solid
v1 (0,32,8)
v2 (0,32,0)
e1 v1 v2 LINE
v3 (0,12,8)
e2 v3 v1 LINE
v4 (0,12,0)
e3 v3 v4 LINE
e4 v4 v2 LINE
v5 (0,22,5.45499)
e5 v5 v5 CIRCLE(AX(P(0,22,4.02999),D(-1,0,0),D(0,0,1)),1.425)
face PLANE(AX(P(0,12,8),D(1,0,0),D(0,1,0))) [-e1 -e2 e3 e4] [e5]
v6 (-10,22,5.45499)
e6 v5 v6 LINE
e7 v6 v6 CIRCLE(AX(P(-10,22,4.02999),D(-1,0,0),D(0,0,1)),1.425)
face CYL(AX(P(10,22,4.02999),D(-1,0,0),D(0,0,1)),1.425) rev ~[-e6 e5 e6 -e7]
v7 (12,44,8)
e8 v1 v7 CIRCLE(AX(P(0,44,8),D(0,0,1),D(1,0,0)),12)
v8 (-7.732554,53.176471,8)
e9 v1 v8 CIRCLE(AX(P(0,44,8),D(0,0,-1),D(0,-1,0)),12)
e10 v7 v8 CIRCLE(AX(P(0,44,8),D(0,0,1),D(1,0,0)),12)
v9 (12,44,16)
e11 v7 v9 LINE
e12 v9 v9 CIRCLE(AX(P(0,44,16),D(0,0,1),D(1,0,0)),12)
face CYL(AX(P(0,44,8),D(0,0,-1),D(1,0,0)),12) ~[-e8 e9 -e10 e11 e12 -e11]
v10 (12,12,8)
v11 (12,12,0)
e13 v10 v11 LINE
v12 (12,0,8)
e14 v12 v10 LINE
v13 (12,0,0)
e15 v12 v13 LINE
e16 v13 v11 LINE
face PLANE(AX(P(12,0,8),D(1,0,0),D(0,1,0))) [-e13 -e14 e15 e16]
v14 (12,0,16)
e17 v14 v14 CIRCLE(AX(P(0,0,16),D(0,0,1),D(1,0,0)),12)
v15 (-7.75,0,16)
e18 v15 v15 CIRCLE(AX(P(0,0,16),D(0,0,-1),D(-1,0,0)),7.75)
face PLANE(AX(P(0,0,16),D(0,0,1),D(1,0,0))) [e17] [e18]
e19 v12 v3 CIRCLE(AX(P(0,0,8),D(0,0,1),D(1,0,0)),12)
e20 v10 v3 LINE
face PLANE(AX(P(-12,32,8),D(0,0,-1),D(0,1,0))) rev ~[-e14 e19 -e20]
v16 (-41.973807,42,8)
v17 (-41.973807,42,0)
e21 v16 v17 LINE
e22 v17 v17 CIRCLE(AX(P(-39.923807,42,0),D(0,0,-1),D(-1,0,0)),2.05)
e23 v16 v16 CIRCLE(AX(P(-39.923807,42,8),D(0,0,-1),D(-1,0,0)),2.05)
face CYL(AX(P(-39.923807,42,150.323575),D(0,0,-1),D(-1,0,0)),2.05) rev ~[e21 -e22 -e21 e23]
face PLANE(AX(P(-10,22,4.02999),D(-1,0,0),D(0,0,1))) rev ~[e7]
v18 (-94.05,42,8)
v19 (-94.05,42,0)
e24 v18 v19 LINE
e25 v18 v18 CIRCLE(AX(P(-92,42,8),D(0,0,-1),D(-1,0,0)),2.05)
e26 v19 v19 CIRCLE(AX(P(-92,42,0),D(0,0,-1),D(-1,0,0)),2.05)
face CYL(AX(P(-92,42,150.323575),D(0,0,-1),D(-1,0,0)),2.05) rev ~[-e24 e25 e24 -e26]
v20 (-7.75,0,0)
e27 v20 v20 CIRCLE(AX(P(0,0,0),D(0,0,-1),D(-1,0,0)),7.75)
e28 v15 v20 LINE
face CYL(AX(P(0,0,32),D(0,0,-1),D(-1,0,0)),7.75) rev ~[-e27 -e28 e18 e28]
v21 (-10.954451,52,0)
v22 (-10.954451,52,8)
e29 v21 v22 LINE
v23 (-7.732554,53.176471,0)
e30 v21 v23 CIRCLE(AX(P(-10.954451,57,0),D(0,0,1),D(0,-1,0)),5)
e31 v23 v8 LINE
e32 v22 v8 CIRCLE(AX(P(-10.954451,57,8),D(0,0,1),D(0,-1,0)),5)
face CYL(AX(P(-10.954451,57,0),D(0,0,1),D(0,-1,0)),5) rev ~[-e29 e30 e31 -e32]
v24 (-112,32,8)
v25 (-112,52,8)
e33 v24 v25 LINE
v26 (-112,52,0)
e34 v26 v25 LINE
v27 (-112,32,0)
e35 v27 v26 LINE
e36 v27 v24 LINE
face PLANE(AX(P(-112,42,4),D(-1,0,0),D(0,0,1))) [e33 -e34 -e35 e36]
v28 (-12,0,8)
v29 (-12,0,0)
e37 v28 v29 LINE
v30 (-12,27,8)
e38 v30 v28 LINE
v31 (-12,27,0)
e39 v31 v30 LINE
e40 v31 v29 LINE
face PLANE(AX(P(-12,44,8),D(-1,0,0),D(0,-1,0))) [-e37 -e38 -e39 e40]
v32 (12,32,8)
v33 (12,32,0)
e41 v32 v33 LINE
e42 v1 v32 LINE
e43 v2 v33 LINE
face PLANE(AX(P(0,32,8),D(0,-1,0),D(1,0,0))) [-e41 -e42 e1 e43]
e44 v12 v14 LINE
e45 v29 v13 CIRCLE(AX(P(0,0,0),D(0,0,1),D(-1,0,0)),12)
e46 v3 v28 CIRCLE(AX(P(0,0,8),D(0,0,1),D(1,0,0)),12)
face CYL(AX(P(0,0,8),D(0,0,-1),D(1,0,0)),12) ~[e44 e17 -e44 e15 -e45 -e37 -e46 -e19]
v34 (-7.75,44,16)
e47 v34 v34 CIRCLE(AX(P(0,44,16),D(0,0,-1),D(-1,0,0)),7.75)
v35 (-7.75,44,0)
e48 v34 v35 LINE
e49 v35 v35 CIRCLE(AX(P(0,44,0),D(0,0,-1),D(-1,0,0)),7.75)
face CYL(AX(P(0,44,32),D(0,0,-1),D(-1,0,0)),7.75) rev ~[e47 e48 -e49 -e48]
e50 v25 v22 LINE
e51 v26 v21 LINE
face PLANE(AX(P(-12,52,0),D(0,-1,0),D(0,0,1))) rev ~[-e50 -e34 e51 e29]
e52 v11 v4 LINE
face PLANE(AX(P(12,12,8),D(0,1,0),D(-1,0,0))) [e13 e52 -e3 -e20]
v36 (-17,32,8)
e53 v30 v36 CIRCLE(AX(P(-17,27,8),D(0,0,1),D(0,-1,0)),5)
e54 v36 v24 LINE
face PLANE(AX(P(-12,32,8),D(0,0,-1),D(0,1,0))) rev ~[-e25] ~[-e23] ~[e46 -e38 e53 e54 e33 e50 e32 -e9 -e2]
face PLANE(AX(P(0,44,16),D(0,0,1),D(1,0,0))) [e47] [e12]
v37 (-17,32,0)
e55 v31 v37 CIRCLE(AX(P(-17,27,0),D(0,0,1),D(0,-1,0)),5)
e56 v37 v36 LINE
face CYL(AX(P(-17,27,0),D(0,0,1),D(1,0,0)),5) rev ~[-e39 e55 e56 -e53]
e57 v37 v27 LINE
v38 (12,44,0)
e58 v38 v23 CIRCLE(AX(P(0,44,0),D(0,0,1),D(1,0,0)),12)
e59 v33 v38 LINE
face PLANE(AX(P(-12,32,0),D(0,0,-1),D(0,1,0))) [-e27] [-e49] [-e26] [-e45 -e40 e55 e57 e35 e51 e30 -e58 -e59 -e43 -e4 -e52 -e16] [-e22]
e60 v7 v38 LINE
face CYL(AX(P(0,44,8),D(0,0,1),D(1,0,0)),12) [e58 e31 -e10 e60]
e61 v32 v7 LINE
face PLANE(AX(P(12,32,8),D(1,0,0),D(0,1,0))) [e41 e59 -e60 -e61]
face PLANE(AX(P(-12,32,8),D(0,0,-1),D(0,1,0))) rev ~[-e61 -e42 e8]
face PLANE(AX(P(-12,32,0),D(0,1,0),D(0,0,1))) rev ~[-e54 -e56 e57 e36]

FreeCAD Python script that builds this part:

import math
import FreeCAD as App
import Part
import Sketcher
Q = App.Units.Quantity


def edges_at(feature, points):
    """Names of the edges that pass closest to the given points."""
    edges = feature.Shape.Edges
    near = lambda p: min(range(len(edges)), key=lambda i: edges[i].distToShape(Part.Vertex(*p))[0])
    return sorted({f"Edge{near(p) + 1}" for p in points})

doc = App.newDocument("Part")
params = doc.addObject("Spreadsheet::Sheet", "Params")
for row, (alias, value) in enumerate([
    ("sketch1_radius", "12 mm"),
    ("sketch1_height", "44 mm"),
    ("pad1_length", "8 mm"),
    ("sketch2_width", "20 mm"),
    ("sketch2_height", "8 mm"),
    ("pad2_length", "100 mm"),
    ("pad2_length2", "5 mm"),
    ("sketch3_diameter", "24 mm"),
    ("pad3_length", "8 mm"),
    ("sketch4_diameter", "24 mm"),
    ("pad4_length", "8 mm"),
    ("sketch5_diameter", "4.1 mm"),
    ("hole_diameter", "4.1 mm"),
    ("sketch6_diameter", "15.5 mm"),
    ("hole2_diameter", "15.5 mm"),
    ("hole2_depth", "16 mm"),
    ("sketch7_diameter", "2.85 mm"),
    ("hole3_diameter", "2.85 mm"),
    ("hole3_depth", "10 mm"),
    ("fillet_radius", "5 mm"),
], start=1):
    params.set(f"A{row}", alias)
    params.set(f"B{row}", "=" + value)
    params.setAlias(f"B{row}", alias)

body = doc.addObject("PartDesign::Body", "Body")

# Sketch on XY plane
sketch1 = body.newObject("Sketcher::SketchObject", "Sketch")
sketch1.AttachmentSupport = (doc.getObject("XY_Plane"), [""])
sketch1.MapMode = "FlatFace"
sketch1.AttachmentOffset = App.Placement(App.Vector(0, 0, 8), App.Rotation())
sketch1.addGeometry(Part.LineSegment(App.Vector(-12, 44, 0), App.Vector(-12, 0, 0)), False)
sketch1.addGeometry(Part.ArcOfCircle(Part.Circle(App.Vector(0, 0, 0), App.Vector(0, 0, 1), 12), math.radians(180), math.radians(360)), False)
sketch1.addGeometry(Part.LineSegment(App.Vector(12, 0, 0), App.Vector(12, 12, 0)), False)
sketch1.addGeometry(Part.LineSegment(App.Vector(12, 12, 0), App.Vector(0, 12, 0)), False)
sketch1.addGeometry(Part.LineSegment(App.Vector(0, 12, 0), App.Vector(0, 32, 0)), False)
sketch1.addGeometry(Part.LineSegment(App.Vector(0, 32, 0), App.Vector(12, 32, 0)), False)
sketch1.addGeometry(Part.LineSegment(App.Vector(12, 32, 0), App.Vector(12, 44, 0)), False)
sketch1.addGeometry(Part.ArcOfCircle(Part.Circle(App.Vector(0, 44, 0), App.Vector(0, 0, 1), 12), math.radians(0), math.radians(180)), False)
sketch1.addConstraint(Sketcher.Constraint("Tangent", 0, 2, 1, 1))
sketch1.addConstraint(Sketcher.Constraint("Tangent", 1, 2, 2, 1))
sketch1.addConstraint(Sketcher.Constraint("Coincident", 2, 2, 3, 1))
sketch1.addConstraint(Sketcher.Constraint("Coincident", 3, 2, 4, 1))
sketch1.addConstraint(Sketcher.Constraint("Coincident", 4, 2, 5, 1))
sketch1.addConstraint(Sketcher.Constraint("Coincident", 5, 2, 6, 1))
sketch1.addConstraint(Sketcher.Constraint("Tangent", 6, 2, 7, 1))
sketch1.addConstraint(Sketcher.Constraint("Tangent", 7, 2, 0, 1))
sketch1.addConstraint(Sketcher.Constraint("Vertical", 0))
sketch1.addConstraint(Sketcher.Constraint("Vertical", 2))
sketch1.addConstraint(Sketcher.Constraint("Horizontal", 3))
sketch1.addConstraint(Sketcher.Constraint("Vertical", 4))
sketch1.addConstraint(Sketcher.Constraint("Horizontal", 5))
sketch1.addConstraint(Sketcher.Constraint("Vertical", 6))
sketch1.addConstraint(Sketcher.Constraint("Coincident", 1, 3, -1, 1))
sketch1.addConstraint(Sketcher.Constraint("Equal", 1, 7))
sketch1.addConstraint(Sketcher.Constraint("PointOnObject", 3, 2, -2))
sketch1.addConstraint(Sketcher.Constraint("Equal", 5, 2))
sketch1.addConstraint(Sketcher.Constraint("Equal", 2, 6))
sketch1.addConstraint(Sketcher.Constraint("Radius", 1, Q("12 mm")))
sketch1.addConstraint(Sketcher.Constraint("DistanceY", 0, 2, 0, 1, Q("44 mm")))
sketch1.setExpression("Constraints[19]", "Params.sketch1_radius")
sketch1.setExpression("Constraints[20]", "Params.sketch1_height")
pad1 = body.newObject("PartDesign::Pad", "Pad")
pad1.Profile = sketch1
pad1.setExpression("Length", "Params.pad1_length")
pad1.Reversed = True

# Sketch on YZ plane
sketch2 = body.newObject("Sketcher::SketchObject", "Sketch001")
sketch2.AttachmentSupport = (doc.getObject("YZ_Plane"), [""])
sketch2.MapMode = "FlatFace"
sketch2.AttachmentOffset = App.Placement(App.Vector(0, 0, -12), App.Rotation())
sketch2.addGeometry(Part.LineSegment(App.Vector(52, 0, 0), App.Vector(32, 0, 0)), False)
sketch2.addGeometry(Part.LineSegment(App.Vector(32, 0, 0), App.Vector(32, 8, 0)), False)
sketch2.addGeometry(Part.LineSegment(App.Vector(32, 8, 0), App.Vector(52, 8, 0)), False)
sketch2.addGeometry(Part.LineSegment(App.Vector(52, 8, 0), App.Vector(52, 0, 0)), False)
sketch2.addConstraint(Sketcher.Constraint("Coincident", 0, 2, 1, 1))
sketch2.addConstraint(Sketcher.Constraint("Coincident", 1, 2, 2, 1))
sketch2.addConstraint(Sketcher.Constraint("Coincident", 2, 2, 3, 1))
sketch2.addConstraint(Sketcher.Constraint("Coincident", 3, 2, 0, 1))
sketch2.addConstraint(Sketcher.Constraint("Horizontal", 0))
sketch2.addConstraint(Sketcher.Constraint("Vertical", 1))
sketch2.addConstraint(Sketcher.Constraint("Horizontal", 2))
sketch2.addConstraint(Sketcher.Constraint("Vertical", 3))
sketch2.addConstraint(Sketcher.Constraint("PointOnObject", 0, 2, -1))
sketch2.addConstraint(Sketcher.Constraint("DistanceX", 0, 2, 0, 1, Q("20 mm")))
sketch2.addConstraint(Sketcher.Constraint("DistanceY", 1, 1, 1, 2, Q("8 mm")))
sketch2.addConstraint(Sketcher.Constraint("DistanceX", -1, 1, 0, 2, Q("32 mm")))
sketch2.setExpression("Constraints[9]", "Params.sketch2_width")
sketch2.setExpression("Constraints[10]", "Params.sketch2_height")
pad2 = body.newObject("PartDesign::Pad", "Pad001")
pad2.Profile = sketch2
pad2.Type = "TwoLengths"
pad2.setExpression("Length", "Params.pad2_length")
pad2.setExpression("Length2", "Params.pad2_length2")
pad2.Reversed = True

# Sketch on XY plane
sketch3 = body.newObject("Sketcher::SketchObject", "Sketch002")
sketch3.AttachmentSupport = (doc.getObject("XY_Plane"), [""])
sketch3.MapMode = "FlatFace"
sketch3.AttachmentOffset = App.Placement(App.Vector(0, 0, 8), App.Rotation())
sketch3.addGeometry(Part.Circle(App.Vector(0, 44, 0), App.Vector(0, 0, 1), 12), False)
sketch3.addConstraint(Sketcher.Constraint("PointOnObject", 0, 3, -2))
sketch3.addConstraint(Sketcher.Constraint("Diameter", 0, Q("24 mm")))
sketch3.addConstraint(Sketcher.Constraint("DistanceY", -1, 1, 0, 3, Q("44 mm")))
sketch3.setExpression("Constraints[1]", "Params.sketch3_diameter")
pad3 = body.newObject("PartDesign::Pad", "Pad002")
pad3.Profile = sketch3
pad3.setExpression("Length", "Params.pad3_length")

# Sketch on XY plane
sketch4 = body.newObject("Sketcher::SketchObject", "Sketch003")
sketch4.AttachmentSupport = (doc.getObject("XY_Plane"), [""])
sketch4.MapMode = "FlatFace"
sketch4.AttachmentOffset = App.Placement(App.Vector(0, 0, 8), App.Rotation())
sketch4.addGeometry(Part.Circle(App.Vector(0, 0, 0), App.Vector(0, 0, 1), 12), False)
sketch4.addConstraint(Sketcher.Constraint("Coincident", 0, 3, -1, 1))
sketch4.addConstraint(Sketcher.Constraint("Diameter", 0, Q("24 mm")))
sketch4.setExpression("Constraints[1]", "Params.sketch4_diameter")
pad4 = body.newObject("PartDesign::Pad", "Pad003")
pad4.Profile = sketch4
pad4.setExpression("Length", "Params.pad4_length")

# Sketch on XY plane
sketch5 = body.newObject("Sketcher::SketchObject", "Sketch004")
sketch5.AttachmentSupport = (doc.getObject("XY_Plane"), [""])
sketch5.MapMode = "FlatFace"
sketch5.AttachmentOffset = App.Placement(App.Vector(0, 0, 8), App.Rotation())
sketch5.addGeometry(Part.Circle(App.Vector(-39.923807, 42, 0), App.Vector(0, 0, 1), 2.05), False)
sketch5.addGeometry(Part.Circle(App.Vector(-92, 42, 0), App.Vector(0, 0, 1), 2.05), False)
sketch5.addConstraint(Sketcher.Constraint("Equal", 0, 1))
sketch5.addConstraint(Sketcher.Constraint("Horizontal", 0, 3, 1, 3))
sketch5.addConstraint(Sketcher.Constraint("Diameter", 0, Q("4.1 mm")))
sketch5.addConstraint(Sketcher.Constraint("DistanceY", -1, 1, 0, 3, Q("42 mm")))
sketch5.addConstraint(Sketcher.Constraint("DistanceX", 1, 3, -1, 1, Q("92 mm")))
sketch5.addConstraint(Sketcher.Constraint("DistanceX", 0, 3, -1, 1, Q("39.923807 mm")))
sketch5.setExpression("Constraints[2]", "Params.sketch5_diameter")
doc.recompute()
hole = body.newObject("PartDesign::Hole", "Hole")
hole.Profile = sketch5
hole.ThreadType = "None"
hole.setExpression("Diameter", "Params.hole_diameter")
hole.DepthType = "ThroughAll"

# Sketch on XY plane
sketch6 = body.newObject("Sketcher::SketchObject", "Sketch005")
sketch6.AttachmentSupport = (doc.getObject("XY_Plane"), [""])
sketch6.MapMode = "FlatFace"
sketch6.AttachmentOffset = App.Placement(App.Vector(0, 0, 16), App.Rotation())
sketch6.addGeometry(Part.Circle(App.Vector(0, 44, 0), App.Vector(0, 0, 1), 7.75), False)
sketch6.addGeometry(Part.Circle(App.Vector(0, 0, 0), App.Vector(0, 0, 1), 7.75), False)
sketch6.addConstraint(Sketcher.Constraint("Coincident", 1, 3, -1, 1))
sketch6.addConstraint(Sketcher.Constraint("Equal", 0, 1))
sketch6.addConstraint(Sketcher.Constraint("PointOnObject", 0, 3, -2))
sketch6.addConstraint(Sketcher.Constraint("Diameter", 0, Q("15.5 mm")))
sketch6.addConstraint(Sketcher.Constraint("DistanceY", -1, 1, 0, 3, Q("44 mm")))
sketch6.setExpression("Constraints[3]", "Params.sketch6_diameter")
doc.recompute()
hole2 = body.newObject("PartDesign::Hole", "Hole001")
hole2.Profile = sketch6
hole2.ThreadType = "None"
hole2.setExpression("Diameter", "Params.hole2_diameter")
hole2.DepthType = "Dimension"
hole2.setExpression("Depth", "Params.hole2_depth")
hole2.DrillPoint = "Flat"

# Sketch on YZ plane
sketch7 = body.newObject("Sketcher::SketchObject", "Sketch006")
sketch7.AttachmentSupport = (doc.getObject("YZ_Plane"), [""])
sketch7.MapMode = "FlatFace"
sketch7.addGeometry(Part.Circle(App.Vector(22, 4.02999, 0), App.Vector(0, 0, 1), 1.425), False)
sketch7.addConstraint(Sketcher.Constraint("Diameter", 0, Q("2.85 mm")))
sketch7.addConstraint(Sketcher.Constraint("DistanceX", -1, 1, 0, 3, Q("22 mm")))
sketch7.addConstraint(Sketcher.Constraint("DistanceY", -1, 1, 0, 3, Q("4.02999 mm")))
sketch7.setExpression("Constraints[0]", "Params.sketch7_diameter")
doc.recompute()
hole3 = body.newObject("PartDesign::Hole", "Hole002")
hole3.Profile = sketch7
hole3.ThreadType = "None"
hole3.setExpression("Diameter", "Params.hole3_diameter")
hole3.DepthType = "Dimension"
hole3.setExpression("Depth", "Params.hole3_depth")
hole3.DrillPoint = "Flat"
doc.recompute()

fillet = body.newObject("PartDesign::Fillet", "Fillet")
fillet.Base = (hole3, edges_at(hole3, [(-8.944, 52, 4), (-12, 32, 4)]))
fillet.setExpression("Radius", "Params.fillet_radius")

doc.recompute()
